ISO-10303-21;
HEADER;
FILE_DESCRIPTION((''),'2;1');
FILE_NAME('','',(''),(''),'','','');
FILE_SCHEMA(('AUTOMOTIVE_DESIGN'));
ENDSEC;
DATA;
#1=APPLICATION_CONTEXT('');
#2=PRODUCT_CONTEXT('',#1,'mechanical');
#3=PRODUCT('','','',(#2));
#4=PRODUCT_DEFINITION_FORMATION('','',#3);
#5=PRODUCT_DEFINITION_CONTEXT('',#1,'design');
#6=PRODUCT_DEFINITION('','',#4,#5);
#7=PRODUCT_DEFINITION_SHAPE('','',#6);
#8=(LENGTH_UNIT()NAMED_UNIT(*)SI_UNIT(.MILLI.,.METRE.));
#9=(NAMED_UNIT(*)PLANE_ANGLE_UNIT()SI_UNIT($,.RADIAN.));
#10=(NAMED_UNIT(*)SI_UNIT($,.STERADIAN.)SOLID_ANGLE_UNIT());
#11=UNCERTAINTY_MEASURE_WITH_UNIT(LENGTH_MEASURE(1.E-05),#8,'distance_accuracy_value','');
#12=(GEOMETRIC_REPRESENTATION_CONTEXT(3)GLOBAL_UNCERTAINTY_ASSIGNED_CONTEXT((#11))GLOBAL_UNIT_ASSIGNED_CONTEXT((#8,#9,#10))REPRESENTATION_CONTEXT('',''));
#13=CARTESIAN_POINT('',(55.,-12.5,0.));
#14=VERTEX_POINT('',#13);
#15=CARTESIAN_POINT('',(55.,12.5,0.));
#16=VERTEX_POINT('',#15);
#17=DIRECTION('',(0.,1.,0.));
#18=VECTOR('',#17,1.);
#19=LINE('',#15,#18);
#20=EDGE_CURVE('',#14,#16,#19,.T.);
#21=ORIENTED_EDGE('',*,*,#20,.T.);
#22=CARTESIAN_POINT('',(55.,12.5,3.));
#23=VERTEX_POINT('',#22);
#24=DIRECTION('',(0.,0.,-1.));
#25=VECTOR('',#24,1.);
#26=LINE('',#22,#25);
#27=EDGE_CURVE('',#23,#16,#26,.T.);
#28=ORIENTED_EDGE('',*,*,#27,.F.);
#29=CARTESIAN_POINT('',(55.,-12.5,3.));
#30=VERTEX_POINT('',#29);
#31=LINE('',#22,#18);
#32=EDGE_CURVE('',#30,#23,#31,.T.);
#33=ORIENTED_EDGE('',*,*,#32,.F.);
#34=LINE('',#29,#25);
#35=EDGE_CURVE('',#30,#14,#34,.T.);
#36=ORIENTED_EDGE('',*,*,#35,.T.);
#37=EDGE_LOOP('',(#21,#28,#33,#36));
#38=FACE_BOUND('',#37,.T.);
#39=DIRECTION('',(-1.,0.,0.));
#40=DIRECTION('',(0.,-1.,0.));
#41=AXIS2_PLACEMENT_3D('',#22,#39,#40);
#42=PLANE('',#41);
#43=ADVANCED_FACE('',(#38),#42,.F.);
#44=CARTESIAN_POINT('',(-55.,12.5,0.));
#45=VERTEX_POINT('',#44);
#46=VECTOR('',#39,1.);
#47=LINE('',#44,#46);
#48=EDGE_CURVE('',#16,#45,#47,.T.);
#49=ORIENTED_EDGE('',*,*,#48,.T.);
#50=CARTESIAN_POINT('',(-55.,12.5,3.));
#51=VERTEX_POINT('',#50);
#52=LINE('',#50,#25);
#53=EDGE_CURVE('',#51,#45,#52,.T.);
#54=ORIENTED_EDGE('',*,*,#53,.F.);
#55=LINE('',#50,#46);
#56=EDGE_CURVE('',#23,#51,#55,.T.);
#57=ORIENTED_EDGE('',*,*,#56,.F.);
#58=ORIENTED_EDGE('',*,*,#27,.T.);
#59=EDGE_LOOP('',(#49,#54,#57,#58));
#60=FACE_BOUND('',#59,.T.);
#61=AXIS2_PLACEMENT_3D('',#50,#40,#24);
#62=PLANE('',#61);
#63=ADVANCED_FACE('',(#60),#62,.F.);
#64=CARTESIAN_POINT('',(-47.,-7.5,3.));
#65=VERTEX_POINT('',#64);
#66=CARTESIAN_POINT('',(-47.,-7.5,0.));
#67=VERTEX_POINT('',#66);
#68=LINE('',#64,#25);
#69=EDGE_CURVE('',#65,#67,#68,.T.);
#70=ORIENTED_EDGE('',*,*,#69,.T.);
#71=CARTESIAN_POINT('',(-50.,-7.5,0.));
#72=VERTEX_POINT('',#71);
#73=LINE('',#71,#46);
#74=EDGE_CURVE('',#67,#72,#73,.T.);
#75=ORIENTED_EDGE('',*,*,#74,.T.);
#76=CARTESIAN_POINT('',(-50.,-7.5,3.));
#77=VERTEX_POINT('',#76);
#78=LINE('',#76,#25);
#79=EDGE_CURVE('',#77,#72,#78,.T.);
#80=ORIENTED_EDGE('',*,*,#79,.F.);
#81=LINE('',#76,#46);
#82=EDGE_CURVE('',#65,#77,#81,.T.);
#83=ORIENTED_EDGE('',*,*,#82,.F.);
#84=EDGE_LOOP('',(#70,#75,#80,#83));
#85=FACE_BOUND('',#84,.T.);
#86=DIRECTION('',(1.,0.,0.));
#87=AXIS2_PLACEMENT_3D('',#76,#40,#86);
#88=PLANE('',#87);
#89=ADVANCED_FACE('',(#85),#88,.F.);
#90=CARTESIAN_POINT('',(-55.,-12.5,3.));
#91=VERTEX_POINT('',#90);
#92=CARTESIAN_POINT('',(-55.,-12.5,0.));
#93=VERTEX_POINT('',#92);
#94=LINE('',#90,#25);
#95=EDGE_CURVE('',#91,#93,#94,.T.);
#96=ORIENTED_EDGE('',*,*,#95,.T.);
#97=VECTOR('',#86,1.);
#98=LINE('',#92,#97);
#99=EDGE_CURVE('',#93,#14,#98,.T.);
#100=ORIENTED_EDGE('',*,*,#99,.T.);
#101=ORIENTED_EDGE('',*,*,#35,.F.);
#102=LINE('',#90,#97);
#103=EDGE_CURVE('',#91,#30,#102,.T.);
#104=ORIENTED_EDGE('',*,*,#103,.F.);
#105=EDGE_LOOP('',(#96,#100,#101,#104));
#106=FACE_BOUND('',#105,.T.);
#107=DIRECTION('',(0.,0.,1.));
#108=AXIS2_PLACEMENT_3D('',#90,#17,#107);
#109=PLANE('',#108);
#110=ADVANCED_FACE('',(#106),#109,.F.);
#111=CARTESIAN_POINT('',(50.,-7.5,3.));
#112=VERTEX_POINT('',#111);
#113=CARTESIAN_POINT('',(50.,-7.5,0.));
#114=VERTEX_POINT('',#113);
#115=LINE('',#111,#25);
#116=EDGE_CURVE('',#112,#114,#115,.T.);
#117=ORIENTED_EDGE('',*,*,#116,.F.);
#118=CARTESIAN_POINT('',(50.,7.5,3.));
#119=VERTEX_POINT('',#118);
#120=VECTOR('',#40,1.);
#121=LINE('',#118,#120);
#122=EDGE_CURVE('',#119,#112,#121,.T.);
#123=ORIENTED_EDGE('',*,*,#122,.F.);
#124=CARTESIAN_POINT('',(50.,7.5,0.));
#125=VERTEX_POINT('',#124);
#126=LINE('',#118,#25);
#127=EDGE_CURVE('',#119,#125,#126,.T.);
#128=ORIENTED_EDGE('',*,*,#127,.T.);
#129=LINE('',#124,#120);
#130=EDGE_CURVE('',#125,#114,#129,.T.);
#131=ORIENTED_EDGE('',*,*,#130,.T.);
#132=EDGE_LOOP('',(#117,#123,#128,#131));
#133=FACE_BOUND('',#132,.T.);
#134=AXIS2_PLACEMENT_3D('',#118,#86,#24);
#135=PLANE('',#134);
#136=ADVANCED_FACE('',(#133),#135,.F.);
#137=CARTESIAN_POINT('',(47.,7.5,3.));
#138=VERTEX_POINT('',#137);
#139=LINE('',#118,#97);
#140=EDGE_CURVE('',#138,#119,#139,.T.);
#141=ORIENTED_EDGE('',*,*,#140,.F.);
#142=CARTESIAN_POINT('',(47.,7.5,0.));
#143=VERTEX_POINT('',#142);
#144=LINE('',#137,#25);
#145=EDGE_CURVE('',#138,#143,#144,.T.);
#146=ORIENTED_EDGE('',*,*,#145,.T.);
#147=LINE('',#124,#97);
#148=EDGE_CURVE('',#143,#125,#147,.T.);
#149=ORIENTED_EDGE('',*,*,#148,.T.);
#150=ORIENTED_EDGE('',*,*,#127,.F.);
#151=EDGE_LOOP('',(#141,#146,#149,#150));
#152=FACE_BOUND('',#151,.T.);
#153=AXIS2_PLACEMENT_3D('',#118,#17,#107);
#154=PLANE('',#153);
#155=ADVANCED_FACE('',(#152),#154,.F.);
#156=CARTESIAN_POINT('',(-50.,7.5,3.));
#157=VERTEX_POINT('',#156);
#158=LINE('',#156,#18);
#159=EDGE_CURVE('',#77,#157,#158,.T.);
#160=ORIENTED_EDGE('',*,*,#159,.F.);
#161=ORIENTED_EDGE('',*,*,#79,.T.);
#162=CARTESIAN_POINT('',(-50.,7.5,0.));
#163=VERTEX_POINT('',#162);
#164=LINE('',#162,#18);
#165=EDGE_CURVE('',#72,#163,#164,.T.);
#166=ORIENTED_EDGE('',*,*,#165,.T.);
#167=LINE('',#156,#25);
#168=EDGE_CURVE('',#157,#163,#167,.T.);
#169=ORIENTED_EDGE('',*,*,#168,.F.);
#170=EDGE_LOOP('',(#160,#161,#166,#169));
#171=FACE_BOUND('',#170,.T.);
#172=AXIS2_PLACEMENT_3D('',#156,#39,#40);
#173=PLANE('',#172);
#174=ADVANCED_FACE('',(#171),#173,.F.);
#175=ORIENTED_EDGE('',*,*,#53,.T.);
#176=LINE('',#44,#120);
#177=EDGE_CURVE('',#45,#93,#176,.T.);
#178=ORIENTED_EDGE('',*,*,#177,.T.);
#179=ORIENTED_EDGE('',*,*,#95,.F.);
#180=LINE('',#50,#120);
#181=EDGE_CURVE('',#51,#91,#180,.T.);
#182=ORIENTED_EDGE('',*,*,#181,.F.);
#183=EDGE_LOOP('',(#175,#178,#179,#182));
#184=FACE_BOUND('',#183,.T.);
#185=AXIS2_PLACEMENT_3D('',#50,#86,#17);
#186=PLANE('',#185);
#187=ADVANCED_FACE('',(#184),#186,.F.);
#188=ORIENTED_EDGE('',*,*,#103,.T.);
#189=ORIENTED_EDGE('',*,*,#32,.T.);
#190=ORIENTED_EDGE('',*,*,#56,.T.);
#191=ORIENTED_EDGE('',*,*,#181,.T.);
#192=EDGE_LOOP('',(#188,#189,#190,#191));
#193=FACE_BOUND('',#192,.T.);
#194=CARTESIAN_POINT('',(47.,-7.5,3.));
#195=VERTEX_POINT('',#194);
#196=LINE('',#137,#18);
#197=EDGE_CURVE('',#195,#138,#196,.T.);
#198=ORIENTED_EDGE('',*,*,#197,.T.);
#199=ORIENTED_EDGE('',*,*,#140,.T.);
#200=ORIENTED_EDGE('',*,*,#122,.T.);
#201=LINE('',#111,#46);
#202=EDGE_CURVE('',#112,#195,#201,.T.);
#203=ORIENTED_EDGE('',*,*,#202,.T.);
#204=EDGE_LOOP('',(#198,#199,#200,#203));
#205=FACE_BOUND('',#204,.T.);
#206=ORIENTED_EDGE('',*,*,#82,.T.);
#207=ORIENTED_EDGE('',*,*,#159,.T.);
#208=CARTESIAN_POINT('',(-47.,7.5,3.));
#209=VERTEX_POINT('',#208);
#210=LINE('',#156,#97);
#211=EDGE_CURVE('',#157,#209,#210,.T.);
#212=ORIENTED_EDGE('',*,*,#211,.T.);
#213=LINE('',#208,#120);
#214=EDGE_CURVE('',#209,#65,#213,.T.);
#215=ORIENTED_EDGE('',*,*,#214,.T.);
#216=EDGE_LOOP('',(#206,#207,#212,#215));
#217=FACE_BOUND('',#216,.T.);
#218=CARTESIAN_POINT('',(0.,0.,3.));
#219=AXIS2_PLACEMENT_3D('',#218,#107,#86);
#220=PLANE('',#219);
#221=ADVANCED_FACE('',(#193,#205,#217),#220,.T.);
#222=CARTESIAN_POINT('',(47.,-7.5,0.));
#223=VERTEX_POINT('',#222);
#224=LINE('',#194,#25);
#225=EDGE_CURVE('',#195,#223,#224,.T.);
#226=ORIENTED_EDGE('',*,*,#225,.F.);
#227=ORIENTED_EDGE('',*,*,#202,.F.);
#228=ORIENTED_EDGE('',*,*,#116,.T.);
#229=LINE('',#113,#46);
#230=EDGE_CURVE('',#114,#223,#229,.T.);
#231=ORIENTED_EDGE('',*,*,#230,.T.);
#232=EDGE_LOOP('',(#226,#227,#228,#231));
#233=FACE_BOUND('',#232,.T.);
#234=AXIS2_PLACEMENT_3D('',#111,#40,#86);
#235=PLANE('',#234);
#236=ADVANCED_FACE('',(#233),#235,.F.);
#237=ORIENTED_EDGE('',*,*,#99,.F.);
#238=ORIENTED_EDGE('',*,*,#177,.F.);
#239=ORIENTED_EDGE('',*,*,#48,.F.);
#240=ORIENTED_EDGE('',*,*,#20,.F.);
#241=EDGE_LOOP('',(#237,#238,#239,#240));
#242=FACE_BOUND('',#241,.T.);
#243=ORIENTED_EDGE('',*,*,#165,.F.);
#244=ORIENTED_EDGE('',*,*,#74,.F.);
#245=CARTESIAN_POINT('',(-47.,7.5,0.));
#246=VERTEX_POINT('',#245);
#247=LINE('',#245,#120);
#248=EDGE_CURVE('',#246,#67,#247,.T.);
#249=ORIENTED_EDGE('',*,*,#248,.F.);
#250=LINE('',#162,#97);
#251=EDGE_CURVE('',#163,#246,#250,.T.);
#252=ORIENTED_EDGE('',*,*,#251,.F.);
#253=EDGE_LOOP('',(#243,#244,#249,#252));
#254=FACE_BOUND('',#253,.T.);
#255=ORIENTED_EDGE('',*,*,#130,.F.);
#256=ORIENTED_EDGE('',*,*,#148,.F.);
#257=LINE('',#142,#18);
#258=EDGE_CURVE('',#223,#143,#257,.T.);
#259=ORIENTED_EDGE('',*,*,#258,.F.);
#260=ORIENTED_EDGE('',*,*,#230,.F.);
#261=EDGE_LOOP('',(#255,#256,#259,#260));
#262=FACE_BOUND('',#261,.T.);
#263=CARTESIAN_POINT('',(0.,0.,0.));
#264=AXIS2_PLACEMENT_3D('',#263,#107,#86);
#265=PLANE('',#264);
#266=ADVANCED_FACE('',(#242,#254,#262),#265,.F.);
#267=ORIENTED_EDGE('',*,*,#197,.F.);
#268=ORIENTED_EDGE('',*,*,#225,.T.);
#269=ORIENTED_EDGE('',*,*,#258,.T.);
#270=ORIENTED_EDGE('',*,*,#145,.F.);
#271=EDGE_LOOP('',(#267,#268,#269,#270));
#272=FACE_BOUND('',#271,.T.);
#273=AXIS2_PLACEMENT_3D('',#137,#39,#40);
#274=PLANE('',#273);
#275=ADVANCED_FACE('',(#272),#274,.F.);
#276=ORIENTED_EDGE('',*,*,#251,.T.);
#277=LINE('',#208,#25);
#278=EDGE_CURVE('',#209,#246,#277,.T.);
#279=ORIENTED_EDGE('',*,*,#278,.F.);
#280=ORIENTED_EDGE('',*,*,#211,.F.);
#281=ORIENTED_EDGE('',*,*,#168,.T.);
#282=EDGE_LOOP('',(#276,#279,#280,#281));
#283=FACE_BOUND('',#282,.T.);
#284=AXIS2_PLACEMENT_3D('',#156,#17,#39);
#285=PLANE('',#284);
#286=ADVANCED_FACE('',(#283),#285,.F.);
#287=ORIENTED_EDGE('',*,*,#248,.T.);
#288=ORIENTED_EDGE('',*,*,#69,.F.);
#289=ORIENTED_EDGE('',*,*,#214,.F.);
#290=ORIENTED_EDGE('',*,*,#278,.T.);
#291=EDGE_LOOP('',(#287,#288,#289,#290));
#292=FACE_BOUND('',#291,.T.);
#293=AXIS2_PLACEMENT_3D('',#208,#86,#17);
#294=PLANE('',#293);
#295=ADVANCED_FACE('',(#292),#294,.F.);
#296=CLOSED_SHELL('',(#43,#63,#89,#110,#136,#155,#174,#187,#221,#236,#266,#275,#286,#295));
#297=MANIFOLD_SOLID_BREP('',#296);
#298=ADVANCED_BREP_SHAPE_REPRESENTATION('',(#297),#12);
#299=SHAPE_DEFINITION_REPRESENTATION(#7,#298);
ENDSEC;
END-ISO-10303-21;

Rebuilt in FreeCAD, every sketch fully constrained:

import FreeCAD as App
import Part
import Sketcher


def add_polygon(sketch, points):
    """Adds a closed chain of lines whose ends are joined by coincident constraints."""
    first, n = sketch.GeometryCount, len(points)
    for a, b in zip(points, points[1:] + points[:1]):
        sketch.addGeometry(Part.LineSegment(App.Vector(*a, 0), App.Vector(*b, 0)), False)
    for i in range(n):
        sketch.addConstraint(Sketcher.Constraint("Coincident", first + i, 2, first + (i + 1) % n, 1))

doc = App.newDocument("Part")
params = doc.addObject("Spreadsheet::Sheet", "Params")
for row, (alias, value) in enumerate([
    ("sketch1_width", "110 mm"),
    ("sketch1_height", "25 mm"),
    ("pad1_length", "3 mm"),
    ("sketch2_width", "3 mm"),
    ("sketch2_height", "15 mm"),
], start=1):
    params.set(f"A{row}", alias)
    params.set(f"B{row}", "=" + value)
    params.setAlias(f"B{row}", alias)

body = doc.addObject("PartDesign::Body", "Body")

# Sketch on XY plane
sketch1 = doc.addObject("Sketcher::SketchObject", "Sketch")
body.addObject(sketch1)
sketch1.AttachmentSupport = (doc.XY_Plane, [""])
sketch1.MapMode = "FlatFace"
add_polygon(sketch1, [(-55, 12), (-55, -12), (55, -12), (55, 12)])  # lines 0-3
sketch1.addConstraint([
    Sketcher.Constraint("Vertical", 0),
    Sketcher.Constraint("Horizontal", 1),
    Sketcher.Constraint("Vertical", 2),
    Sketcher.Constraint("Horizontal", 3),
    Sketcher.Constraint("Symmetric", 0, 2, 2, 2, -1, 1),
    Sketcher.Constraint("DistanceX", 1, 1, 1, 2, 110.0),
    Sketcher.Constraint("DistanceY", 0, 2, 0, 1, 25.0),
])
sketch1.setExpression("Constraints[9]", "Params.sketch1_width")
sketch1.setExpression("Constraints[10]", "Params.sketch1_height")
pad1 = doc.addObject("PartDesign::Pad", "Pad")
body.addObject(pad1)
pad1.Profile = sketch1
pad1.setExpression("Length", "Params.pad1_length")

# Sketch on XY plane
sketch2 = doc.addObject("Sketcher::SketchObject", "Sketch001")
body.addObject(sketch2)
sketch2.AttachmentSupport = (doc.XY_Plane, [""])
sketch2.MapMode = "FlatFace"
add_polygon(sketch2, [(-47, 7.5), (-47, -7.5), (-50, -7.5), (-50, 7.5)])  # lines 0-3
add_polygon(sketch2, [(50, 7.5), (50, -7.5), (47, -7.5), (47, 7.5)])  # lines 4-7
sketch2.addConstraint([
    Sketcher.Constraint("Vertical", 0),
    Sketcher.Constraint("Horizontal", 1),
    Sketcher.Constraint("Vertical", 2),
    Sketcher.Constraint("Horizontal", 3),
    Sketcher.Constraint("Vertical", 4),
    Sketcher.Constraint("Horizontal", 5),
    Sketcher.Constraint("Vertical", 6),
    Sketcher.Constraint("Horizontal", 7),
    Sketcher.Constraint("Symmetric", 2, 2, 4, 2, -1, 1),
    Sketcher.Constraint("Symmetric", 0, 2, 6, 2, -1, 1),
    Sketcher.Constraint("Horizontal", 1, 2, 4, 2),
    Sketcher.Constraint("DistanceX", 1, 2, 1, 1, 3.0),
    Sketcher.Constraint("DistanceY", 0, 2, 0, 1, 15.0),
    Sketcher.Constraint("DistanceX", 0, 2, -1, 1, 47.0),
])
sketch2.setExpression("Constraints[19]", "Params.sketch2_width")
sketch2.setExpression("Constraints[20]", "Params.sketch2_height")
pocket1 = doc.addObject("PartDesign::Pocket", "Pocket")
body.addObject(pocket1)
pocket1.Profile = sketch2
pocket1.Type = "ThroughAll"
pocket1.Reversed = True

doc.recompute()
